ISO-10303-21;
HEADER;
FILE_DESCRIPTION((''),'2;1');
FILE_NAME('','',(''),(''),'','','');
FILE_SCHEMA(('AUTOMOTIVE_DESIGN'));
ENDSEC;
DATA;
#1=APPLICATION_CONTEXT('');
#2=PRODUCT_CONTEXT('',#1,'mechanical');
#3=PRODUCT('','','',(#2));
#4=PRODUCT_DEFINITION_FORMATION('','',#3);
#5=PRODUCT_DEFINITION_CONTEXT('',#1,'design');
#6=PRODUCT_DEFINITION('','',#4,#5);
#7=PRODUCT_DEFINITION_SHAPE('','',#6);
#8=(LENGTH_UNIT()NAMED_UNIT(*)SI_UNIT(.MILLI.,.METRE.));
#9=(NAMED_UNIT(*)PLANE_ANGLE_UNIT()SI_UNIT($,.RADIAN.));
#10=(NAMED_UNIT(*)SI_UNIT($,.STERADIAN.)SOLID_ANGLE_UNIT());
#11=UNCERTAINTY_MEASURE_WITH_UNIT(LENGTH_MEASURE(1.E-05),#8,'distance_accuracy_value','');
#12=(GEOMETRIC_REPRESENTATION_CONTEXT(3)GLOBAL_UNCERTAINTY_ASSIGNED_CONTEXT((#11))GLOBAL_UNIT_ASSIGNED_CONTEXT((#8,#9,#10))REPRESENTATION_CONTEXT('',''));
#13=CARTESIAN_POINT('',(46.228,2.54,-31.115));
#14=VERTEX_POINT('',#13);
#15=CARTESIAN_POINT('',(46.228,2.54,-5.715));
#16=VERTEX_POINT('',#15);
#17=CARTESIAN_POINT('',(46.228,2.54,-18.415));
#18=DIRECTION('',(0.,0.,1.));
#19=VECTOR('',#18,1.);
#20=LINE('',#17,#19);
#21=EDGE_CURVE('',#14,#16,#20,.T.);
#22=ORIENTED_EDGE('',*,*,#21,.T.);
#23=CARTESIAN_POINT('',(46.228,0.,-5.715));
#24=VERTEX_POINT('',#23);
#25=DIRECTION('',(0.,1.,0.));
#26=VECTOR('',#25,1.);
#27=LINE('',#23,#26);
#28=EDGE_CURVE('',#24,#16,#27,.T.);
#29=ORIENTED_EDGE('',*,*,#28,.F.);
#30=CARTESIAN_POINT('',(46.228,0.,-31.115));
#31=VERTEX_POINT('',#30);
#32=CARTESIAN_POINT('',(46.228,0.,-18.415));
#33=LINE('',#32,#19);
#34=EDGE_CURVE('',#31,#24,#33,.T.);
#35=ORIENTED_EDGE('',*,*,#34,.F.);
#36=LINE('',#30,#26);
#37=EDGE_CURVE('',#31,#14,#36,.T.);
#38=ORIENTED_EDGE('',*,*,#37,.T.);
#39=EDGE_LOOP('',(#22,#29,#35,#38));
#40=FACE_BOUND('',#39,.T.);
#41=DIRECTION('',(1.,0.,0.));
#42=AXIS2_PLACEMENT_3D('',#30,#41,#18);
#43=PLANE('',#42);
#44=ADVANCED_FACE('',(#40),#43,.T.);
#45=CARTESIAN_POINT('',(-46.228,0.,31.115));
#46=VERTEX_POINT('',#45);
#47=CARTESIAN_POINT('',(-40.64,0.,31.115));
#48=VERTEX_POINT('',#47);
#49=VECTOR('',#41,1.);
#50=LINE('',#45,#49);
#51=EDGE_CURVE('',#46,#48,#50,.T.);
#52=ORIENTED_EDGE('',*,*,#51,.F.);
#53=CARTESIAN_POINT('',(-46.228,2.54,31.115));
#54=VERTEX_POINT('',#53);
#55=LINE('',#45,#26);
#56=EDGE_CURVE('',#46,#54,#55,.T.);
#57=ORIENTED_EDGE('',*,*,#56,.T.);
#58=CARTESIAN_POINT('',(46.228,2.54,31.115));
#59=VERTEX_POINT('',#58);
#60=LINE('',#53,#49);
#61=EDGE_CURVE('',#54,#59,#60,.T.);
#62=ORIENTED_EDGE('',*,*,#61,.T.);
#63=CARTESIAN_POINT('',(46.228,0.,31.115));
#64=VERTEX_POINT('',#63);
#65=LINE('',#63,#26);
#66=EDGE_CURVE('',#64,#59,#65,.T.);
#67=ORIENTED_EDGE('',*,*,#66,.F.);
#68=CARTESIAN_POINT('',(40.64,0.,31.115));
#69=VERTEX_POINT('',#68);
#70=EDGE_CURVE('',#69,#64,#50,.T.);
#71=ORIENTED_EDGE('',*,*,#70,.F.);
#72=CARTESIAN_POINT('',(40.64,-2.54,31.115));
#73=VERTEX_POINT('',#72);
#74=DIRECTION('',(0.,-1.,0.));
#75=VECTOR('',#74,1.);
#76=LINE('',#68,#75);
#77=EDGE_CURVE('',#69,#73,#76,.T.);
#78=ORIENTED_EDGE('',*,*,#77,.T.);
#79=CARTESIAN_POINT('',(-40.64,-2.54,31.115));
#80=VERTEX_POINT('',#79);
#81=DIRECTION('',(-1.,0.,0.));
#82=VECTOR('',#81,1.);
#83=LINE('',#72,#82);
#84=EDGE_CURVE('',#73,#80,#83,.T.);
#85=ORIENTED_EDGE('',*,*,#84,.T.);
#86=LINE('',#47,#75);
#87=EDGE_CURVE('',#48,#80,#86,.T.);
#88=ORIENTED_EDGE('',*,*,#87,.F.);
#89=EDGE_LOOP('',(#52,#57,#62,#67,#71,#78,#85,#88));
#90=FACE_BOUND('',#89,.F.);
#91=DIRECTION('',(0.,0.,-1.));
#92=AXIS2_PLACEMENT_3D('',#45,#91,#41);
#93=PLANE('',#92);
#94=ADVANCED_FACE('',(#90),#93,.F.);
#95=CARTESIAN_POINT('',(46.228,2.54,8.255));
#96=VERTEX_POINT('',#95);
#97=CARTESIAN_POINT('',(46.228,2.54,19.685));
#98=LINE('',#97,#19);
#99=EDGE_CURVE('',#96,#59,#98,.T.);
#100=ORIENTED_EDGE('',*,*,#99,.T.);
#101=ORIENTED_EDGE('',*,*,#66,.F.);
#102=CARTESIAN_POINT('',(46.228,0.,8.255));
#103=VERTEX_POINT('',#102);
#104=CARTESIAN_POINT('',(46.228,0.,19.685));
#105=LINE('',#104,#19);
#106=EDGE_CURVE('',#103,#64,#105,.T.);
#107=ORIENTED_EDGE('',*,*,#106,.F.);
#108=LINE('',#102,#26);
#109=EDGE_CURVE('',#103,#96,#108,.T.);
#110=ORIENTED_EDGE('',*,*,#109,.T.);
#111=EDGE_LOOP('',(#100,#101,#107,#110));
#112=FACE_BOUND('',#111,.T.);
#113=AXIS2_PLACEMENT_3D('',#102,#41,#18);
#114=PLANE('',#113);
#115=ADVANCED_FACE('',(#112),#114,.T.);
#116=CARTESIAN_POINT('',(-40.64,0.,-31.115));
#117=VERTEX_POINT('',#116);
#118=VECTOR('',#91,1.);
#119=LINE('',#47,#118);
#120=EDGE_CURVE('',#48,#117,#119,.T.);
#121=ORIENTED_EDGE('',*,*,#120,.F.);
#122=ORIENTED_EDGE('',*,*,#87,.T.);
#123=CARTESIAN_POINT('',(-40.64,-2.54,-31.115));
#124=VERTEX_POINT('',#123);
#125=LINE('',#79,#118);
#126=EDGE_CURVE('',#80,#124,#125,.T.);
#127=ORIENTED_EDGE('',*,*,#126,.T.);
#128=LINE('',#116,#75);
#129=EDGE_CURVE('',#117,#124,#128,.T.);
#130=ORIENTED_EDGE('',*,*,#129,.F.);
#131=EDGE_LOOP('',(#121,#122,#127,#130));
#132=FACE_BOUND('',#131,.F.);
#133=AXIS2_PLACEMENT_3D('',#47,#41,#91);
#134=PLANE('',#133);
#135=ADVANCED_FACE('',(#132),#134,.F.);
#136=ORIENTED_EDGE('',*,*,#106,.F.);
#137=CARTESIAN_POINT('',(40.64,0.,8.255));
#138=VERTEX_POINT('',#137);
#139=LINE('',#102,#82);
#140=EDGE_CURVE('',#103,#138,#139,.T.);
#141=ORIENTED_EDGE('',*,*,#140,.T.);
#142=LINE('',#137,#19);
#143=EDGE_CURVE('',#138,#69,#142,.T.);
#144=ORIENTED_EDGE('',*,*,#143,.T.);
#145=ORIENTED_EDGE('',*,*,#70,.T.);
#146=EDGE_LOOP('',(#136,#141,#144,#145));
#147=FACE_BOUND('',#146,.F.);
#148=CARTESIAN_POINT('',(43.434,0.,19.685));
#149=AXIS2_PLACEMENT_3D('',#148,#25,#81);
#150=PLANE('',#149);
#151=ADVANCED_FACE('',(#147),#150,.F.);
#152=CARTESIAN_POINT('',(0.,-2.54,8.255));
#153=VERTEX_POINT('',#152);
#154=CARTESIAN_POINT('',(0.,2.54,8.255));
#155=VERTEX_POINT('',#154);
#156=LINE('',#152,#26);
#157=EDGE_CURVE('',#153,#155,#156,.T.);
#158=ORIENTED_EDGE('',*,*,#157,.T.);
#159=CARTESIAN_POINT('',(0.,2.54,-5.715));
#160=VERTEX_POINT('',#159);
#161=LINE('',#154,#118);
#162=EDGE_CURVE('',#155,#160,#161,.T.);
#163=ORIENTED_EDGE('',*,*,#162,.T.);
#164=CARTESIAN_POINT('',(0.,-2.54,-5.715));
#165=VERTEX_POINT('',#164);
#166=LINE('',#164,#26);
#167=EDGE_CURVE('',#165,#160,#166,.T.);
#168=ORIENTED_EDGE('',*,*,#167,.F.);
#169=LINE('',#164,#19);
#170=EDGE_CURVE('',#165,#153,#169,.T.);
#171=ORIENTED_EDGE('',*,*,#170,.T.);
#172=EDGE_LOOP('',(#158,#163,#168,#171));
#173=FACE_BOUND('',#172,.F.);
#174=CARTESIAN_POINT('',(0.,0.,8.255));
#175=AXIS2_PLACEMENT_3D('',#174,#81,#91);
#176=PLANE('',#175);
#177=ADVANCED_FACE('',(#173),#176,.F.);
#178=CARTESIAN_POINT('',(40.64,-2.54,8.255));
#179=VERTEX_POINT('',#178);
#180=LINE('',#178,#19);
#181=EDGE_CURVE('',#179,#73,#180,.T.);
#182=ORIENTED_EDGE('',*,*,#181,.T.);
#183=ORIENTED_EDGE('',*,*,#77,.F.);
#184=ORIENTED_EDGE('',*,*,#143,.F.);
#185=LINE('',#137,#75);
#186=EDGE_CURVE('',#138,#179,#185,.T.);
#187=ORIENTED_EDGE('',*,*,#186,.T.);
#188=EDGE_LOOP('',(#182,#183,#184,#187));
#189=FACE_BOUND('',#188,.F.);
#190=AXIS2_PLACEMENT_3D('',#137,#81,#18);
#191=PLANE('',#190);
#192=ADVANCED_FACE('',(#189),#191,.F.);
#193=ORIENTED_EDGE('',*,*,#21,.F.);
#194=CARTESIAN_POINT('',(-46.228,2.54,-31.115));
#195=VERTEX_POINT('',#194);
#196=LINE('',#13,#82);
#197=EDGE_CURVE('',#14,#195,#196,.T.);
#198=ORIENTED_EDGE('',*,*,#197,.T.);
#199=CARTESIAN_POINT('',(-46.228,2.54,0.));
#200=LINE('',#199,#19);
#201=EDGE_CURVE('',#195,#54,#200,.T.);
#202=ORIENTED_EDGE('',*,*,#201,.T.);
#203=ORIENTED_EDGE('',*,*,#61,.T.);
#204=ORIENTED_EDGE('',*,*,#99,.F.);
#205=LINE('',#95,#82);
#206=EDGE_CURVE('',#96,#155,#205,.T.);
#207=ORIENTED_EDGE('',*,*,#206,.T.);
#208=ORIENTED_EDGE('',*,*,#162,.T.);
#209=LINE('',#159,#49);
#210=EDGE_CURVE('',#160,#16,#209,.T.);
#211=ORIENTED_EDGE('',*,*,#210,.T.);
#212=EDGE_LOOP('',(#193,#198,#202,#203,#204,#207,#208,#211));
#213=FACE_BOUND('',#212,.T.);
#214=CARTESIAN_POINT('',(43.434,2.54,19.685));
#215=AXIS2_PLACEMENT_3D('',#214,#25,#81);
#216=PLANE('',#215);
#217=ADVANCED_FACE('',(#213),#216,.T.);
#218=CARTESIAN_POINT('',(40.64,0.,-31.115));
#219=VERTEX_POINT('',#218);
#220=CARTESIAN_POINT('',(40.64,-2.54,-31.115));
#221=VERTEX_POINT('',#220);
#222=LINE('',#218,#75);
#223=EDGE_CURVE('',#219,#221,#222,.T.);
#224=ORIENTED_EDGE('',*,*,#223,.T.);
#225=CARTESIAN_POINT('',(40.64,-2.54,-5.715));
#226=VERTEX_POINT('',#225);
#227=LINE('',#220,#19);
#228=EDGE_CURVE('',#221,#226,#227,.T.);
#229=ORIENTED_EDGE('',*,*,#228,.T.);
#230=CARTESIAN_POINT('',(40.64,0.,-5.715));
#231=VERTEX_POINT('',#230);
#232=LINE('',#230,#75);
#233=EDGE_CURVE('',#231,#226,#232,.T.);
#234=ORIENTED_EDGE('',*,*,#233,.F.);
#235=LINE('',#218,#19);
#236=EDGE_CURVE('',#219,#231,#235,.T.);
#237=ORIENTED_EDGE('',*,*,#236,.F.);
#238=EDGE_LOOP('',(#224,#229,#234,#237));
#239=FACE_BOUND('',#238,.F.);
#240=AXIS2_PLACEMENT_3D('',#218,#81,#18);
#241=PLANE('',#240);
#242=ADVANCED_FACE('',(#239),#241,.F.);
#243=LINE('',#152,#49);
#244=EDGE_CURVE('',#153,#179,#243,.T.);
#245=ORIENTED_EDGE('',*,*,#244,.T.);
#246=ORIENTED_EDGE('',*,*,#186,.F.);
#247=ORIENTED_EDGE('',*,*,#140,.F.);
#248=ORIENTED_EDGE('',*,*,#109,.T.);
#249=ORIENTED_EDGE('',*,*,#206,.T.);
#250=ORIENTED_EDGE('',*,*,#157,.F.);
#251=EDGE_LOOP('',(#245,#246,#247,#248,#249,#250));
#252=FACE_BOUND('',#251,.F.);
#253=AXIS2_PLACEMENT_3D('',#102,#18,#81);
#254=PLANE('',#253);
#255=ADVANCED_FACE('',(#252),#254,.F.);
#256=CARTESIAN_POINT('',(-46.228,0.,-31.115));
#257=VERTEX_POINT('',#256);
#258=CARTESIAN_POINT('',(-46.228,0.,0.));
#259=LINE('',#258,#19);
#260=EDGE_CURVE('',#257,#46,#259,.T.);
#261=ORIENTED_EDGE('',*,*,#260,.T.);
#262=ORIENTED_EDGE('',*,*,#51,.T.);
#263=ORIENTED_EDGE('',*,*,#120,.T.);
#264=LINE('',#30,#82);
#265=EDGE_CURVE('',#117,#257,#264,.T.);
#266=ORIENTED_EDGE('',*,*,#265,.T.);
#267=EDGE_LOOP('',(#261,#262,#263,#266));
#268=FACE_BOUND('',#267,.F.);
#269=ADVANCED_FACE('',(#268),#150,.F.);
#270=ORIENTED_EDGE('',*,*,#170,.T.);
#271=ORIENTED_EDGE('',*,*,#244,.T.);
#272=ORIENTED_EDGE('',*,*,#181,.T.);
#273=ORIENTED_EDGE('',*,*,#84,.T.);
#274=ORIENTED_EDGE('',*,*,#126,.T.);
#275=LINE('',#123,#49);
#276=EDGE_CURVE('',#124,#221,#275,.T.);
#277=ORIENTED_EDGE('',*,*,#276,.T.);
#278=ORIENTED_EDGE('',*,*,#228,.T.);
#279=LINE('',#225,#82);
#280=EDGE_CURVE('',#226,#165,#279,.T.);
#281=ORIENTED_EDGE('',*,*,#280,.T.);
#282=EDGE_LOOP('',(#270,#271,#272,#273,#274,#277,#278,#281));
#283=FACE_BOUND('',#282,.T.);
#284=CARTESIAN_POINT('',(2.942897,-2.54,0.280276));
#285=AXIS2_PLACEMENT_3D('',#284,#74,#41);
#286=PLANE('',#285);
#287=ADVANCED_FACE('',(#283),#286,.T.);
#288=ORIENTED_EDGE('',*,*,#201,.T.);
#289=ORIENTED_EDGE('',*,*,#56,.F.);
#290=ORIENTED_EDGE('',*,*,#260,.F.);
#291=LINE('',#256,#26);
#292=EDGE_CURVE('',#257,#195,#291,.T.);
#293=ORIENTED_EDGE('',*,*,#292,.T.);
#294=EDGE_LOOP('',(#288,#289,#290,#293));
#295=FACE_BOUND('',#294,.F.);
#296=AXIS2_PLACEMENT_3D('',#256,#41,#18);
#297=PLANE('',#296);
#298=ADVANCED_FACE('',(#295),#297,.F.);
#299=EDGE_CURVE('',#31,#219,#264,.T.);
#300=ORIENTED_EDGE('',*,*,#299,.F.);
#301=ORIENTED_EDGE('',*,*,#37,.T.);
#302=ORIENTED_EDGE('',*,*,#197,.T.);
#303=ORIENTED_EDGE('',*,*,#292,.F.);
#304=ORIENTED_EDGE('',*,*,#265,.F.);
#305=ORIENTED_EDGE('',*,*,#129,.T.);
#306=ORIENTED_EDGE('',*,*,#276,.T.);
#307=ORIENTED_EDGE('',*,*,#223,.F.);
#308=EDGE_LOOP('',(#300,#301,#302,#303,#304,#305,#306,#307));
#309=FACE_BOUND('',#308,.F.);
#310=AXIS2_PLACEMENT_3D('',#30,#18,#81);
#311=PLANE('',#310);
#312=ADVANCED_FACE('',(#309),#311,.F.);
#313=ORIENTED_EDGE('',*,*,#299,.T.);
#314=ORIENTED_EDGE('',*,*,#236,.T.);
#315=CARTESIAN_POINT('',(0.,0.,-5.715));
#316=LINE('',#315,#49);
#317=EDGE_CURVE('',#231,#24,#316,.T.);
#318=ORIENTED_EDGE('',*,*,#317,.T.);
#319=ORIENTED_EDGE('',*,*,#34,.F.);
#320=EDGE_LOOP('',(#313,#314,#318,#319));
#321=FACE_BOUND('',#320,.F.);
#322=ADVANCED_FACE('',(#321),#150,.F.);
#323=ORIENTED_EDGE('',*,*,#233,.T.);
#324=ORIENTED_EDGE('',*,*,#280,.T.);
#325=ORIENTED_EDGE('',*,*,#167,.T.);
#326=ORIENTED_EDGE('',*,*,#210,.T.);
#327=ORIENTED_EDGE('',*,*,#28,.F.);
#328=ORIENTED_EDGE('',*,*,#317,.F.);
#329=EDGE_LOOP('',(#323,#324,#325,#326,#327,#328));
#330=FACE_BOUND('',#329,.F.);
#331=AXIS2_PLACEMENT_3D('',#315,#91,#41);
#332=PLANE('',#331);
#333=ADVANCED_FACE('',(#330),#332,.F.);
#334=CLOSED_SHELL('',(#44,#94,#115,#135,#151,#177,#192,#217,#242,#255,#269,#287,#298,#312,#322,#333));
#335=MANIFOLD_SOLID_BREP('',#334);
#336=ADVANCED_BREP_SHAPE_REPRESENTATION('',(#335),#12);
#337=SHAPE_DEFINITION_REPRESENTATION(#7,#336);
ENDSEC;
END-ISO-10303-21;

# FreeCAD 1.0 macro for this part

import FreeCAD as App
import Part
import Sketcher

V = App.Vector
Q = App.Units.Quantity


def add_polygon(sketch, points):
    """Adds a closed chain of lines whose ends are joined by coincident constraints."""
    first, n = sketch.GeometryCount, len(points)
    for a, b in zip(points, points[1:] + points[:1]):
        sketch.addGeometry(Part.LineSegment(App.Vector(*a, 0), App.Vector(*b, 0)), False)
    for i in range(n):
        sketch.addConstraint(Sketcher.Constraint("Coincident", first + i, 2, first + (i + 1) % n, 1))

doc = App.newDocument("Part")
body = doc.addObject("PartDesign::Body", "Body")

# Sketch on XZ plane
sketch1 = doc.addObject("Sketcher::SketchObject", "Sketch")
body.addObject(sketch1)
sketch1.AttachmentSupport = (doc.XZ_Plane, [""])
sketch1.MapMode = "FlatFace"
add_polygon(sketch1, [(40.64, 8.255), (40.64, 31.115), (-40.64, 31.115), (-40.64, -31.115), (40.64, -31.115), (40.64, -5.715), (0, -5.715), (0, 8.255)])  # lines 0-7
sketch1.addConstraint(Sketcher.Constraint("Vertical", 0))
sketch1.addConstraint(Sketcher.Constraint("Horizontal", 1))
sketch1.addConstraint(Sketcher.Constraint("Vertical", 2))
sketch1.addConstraint(Sketcher.Constraint("Horizontal", 3))
sketch1.addConstraint(Sketcher.Constraint("Vertical", 4))
sketch1.addConstraint(Sketcher.Constraint("Horizontal", 5))
sketch1.addConstraint(Sketcher.Constraint("Vertical", 6))
sketch1.addConstraint(Sketcher.Constraint("Horizontal", 7))
sketch1.addConstraint(Sketcher.Constraint("Symmetric", 0, 2, 2, 2, -1, 1))
sketch1.addConstraint(Sketcher.Constraint("PointOnObject", 5, 2, -2))
sketch1.addConstraint(Sketcher.Constraint("Vertical", 0, 2, 3, 2))
sketch1.addConstraint(Sketcher.Constraint("DistanceY", 4, 1, 4, 2, Q("1 in")))
sketch1.addConstraint(Sketcher.Constraint("DistanceX", 1, 2, 1, 1, Q("3.2 in")))
sketch1.addConstraint(Sketcher.Constraint("DistanceY", 0, 1, 0, 2, Q("0.9 in")))
sketch1.addConstraint(Sketcher.Constraint("DistanceY", 2, 2, 2, 1, Q("2.45 in")))
pad1 = doc.addObject("PartDesign::Pad", "Pad")
body.addObject(pad1)
pad1.Profile = sketch1
pad1.Length = Q("0.1 in")

# Sketch on XZ plane
sketch2 = doc.addObject("Sketcher::SketchObject", "Sketch001")
body.addObject(sketch2)
sketch2.AttachmentSupport = (doc.XZ_Plane, [""])
sketch2.MapMode = "FlatFace"
add_polygon(sketch2, [(46.228, 31.115), (46.228, 8.255), (0, 8.255), (0, -5.715), (46.228, -5.715), (46.228, -31.115), (-46.228, -31.115), (-46.228, 31.115)])  # lines 0-7
sketch2.addConstraint(Sketcher.Constraint("Vertical", 0))
sketch2.addConstraint(Sketcher.Constraint("Horizontal", 1))
sketch2.addConstraint(Sketcher.Constraint("Vertical", 2))
sketch2.addConstraint(Sketcher.Constraint("Horizontal", 3))
sketch2.addConstraint(Sketcher.Constraint("Vertical", 4))
sketch2.addConstraint(Sketcher.Constraint("Horizontal", 5))
sketch2.addConstraint(Sketcher.Constraint("Vertical", 6))
sketch2.addConstraint(Sketcher.Constraint("Horizontal", 7))
sketch2.addConstraint(Sketcher.Constraint("Symmetric", 4, 2, 6, 2, -1, 1))
sketch2.addConstraint(Sketcher.Constraint("PointOnObject", 1, 2, -2))
sketch2.addConstraint(Sketcher.Constraint("Vertical", 0, 2, 3, 2))
sketch2.addConstraint(Sketcher.Constraint("DistanceY", 4, 2, 4, 1, Q("1 in")))
sketch2.addConstraint(Sketcher.Constraint("DistanceY", 0, 2, 0, 1, Q("0.9 in")))
sketch2.addConstraint(Sketcher.Constraint("DistanceX", 1, 2, 1, 1, Q("1.82 in")))
sketch2.addConstraint(Sketcher.Constraint("DistanceY", 2, 2, 2, 1, Q("0.55 in")))
pad2 = doc.addObject("PartDesign::Pad", "Pad001")
body.addObject(pad2)
pad2.Profile = sketch2
pad2.Length = Q("0.1 in")
pad2.Reversed = True

doc.recompute()
